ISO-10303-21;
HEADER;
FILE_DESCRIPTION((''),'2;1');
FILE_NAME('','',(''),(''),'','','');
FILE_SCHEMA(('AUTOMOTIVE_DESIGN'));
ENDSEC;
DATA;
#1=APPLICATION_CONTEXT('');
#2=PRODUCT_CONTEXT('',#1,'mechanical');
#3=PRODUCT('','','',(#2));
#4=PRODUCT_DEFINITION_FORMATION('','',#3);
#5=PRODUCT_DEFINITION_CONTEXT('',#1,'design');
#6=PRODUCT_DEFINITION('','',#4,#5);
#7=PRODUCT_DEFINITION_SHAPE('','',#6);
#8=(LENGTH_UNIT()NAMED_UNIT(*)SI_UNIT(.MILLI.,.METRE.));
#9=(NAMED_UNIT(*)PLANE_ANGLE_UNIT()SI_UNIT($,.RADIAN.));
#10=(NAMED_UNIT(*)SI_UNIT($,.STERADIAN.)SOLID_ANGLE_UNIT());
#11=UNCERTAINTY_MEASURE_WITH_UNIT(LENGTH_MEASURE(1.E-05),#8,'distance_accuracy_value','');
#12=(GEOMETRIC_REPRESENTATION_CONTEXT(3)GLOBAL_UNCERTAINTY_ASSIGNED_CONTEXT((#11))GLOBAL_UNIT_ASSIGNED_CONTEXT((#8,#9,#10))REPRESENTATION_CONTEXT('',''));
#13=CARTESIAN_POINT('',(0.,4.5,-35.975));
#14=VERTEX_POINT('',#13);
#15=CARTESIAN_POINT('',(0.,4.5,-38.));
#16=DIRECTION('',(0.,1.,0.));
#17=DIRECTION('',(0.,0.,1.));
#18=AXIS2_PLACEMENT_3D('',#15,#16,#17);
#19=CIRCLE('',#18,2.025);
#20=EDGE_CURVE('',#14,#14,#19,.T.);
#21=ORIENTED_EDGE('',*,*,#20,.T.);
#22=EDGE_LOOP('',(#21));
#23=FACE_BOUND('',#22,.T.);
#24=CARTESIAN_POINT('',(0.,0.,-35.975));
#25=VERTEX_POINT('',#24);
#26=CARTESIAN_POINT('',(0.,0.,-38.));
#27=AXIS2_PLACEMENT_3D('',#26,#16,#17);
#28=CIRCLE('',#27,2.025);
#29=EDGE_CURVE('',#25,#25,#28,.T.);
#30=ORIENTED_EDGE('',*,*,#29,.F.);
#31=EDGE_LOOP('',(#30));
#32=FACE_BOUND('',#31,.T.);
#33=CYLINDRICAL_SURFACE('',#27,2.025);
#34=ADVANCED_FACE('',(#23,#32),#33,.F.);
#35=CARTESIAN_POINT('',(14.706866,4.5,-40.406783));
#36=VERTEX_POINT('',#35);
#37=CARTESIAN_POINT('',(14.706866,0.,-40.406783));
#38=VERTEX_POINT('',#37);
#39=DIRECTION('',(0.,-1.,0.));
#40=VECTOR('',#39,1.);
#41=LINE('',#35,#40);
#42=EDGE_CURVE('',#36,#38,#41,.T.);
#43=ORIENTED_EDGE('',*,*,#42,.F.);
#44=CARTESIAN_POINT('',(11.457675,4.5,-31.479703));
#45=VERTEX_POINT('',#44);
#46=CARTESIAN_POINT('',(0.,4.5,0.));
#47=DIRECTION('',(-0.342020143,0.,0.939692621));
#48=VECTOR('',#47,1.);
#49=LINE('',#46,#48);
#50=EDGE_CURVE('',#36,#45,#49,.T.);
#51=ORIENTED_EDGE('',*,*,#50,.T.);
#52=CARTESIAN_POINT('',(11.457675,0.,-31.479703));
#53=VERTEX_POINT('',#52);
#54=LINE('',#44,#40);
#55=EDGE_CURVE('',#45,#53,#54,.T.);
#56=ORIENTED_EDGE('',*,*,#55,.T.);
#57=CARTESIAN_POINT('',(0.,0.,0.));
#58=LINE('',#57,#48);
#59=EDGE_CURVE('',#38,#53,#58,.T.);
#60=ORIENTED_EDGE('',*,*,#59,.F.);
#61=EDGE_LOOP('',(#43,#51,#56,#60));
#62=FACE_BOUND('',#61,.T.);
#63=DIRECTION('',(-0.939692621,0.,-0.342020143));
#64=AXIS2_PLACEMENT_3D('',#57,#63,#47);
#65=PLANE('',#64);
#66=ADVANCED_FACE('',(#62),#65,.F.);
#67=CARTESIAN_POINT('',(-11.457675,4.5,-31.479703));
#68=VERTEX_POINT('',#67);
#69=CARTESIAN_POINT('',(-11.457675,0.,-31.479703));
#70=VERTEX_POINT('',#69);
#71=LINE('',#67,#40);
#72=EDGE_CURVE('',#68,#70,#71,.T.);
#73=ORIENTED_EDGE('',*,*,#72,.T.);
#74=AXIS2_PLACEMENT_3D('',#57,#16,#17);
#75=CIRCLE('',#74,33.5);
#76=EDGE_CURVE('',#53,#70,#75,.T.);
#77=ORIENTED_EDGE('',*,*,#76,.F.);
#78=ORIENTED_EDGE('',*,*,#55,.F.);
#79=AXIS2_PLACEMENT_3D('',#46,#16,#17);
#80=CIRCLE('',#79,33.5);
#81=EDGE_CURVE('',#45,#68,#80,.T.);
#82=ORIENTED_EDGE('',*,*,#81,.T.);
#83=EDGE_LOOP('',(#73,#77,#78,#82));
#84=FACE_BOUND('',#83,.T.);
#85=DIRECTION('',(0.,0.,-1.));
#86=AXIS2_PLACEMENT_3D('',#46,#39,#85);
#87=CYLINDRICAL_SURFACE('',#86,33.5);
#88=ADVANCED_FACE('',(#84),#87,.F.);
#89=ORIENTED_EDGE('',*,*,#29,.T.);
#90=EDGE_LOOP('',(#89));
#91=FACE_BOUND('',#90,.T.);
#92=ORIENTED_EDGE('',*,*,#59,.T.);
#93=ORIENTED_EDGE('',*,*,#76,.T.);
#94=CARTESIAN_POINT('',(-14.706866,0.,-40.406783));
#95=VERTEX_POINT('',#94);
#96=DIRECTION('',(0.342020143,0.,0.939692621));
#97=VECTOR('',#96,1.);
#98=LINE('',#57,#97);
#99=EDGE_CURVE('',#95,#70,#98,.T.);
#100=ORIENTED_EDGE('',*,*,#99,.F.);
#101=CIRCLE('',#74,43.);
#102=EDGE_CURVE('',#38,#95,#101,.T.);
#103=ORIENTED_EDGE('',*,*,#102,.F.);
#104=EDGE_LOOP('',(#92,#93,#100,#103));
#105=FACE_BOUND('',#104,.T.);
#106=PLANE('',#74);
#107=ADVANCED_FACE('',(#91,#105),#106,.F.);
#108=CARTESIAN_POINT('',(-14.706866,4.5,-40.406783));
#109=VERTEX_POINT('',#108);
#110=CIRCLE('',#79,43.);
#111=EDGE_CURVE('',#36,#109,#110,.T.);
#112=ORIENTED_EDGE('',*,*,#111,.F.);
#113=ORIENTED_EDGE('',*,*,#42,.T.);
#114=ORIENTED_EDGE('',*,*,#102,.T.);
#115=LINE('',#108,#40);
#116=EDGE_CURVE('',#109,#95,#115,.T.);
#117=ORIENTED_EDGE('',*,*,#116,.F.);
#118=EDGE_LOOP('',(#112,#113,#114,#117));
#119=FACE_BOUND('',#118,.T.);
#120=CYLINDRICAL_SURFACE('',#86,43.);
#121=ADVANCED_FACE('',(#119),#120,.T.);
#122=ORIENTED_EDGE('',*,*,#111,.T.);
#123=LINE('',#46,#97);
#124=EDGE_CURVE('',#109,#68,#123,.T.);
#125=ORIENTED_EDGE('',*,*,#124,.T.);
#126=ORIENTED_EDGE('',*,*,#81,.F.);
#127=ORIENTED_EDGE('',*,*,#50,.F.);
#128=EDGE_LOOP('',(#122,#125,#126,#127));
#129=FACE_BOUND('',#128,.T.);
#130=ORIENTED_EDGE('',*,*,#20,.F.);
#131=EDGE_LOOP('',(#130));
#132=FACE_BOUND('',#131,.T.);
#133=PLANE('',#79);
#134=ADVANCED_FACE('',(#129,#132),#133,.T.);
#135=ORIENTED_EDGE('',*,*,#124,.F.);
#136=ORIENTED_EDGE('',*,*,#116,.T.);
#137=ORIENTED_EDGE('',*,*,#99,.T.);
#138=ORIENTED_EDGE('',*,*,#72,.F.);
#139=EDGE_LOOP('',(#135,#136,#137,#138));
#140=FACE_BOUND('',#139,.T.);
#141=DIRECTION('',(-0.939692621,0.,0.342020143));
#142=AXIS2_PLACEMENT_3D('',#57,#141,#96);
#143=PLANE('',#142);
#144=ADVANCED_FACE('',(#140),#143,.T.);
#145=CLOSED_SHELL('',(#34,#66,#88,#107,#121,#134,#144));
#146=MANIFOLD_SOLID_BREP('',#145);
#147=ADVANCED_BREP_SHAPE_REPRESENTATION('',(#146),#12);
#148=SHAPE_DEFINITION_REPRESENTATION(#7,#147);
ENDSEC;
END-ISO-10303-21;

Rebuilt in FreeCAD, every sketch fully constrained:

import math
import FreeCAD as App
import Part
import Sketcher
from FreeCAD import Vector
Q = App.Units.Quantity

doc = App.newDocument("Part")
body = doc.addObject("PartDesign::Body", "Body")

# Sketch on XZ plane
sketch1 = body.newObject("Sketcher::SketchObject", "Sketch")
sketch1.AttachmentSupport = (doc.getObject("XZ_Plane"), [""])
sketch1.MapMode = "FlatFace"
sketch1.addGeometry([
    Part.Circle(Vector(0, 0, 0), Vector(0, 0, 1), 43),
    Part.Circle(Vector(0, 0, 0), Vector(0, 0, 1), 33.5),
], False)
sketch1.addConstraint([
    Sketcher.Constraint("Coincident", 0, 3, -1, 1),
    Sketcher.Constraint("Coincident", 1, 3, -1, 1),
    Sketcher.Constraint("Diameter", 0, 86.0),
    Sketcher.Constraint("Diameter", 1, 67.0),
])
pad1 = body.newObject("PartDesign::Pad", "Pad")
pad1.Profile = sketch1
pad1.Length = 4.5
pad1.Reversed = True

# Sketch on XZ plane
sketch2 = body.newObject("Sketcher::SketchObject", "Sketch001")
sketch2.AttachmentSupport = (doc.getObject("XZ_Plane"), [""])
sketch2.MapMode = "FlatFace"
sketch2.AttachmentOffset = App.Placement(Vector(0, 0, 1), App.Rotation())
sketch2.addGeometry([
    Part.LineSegment(Vector(0, 0, 0), Vector(0, 52.319845, 0)),
    Part.ArcOfCircle(Part.Circle(Vector(0, 0, 0), Vector(0, 0, 1), 52.319845), math.radians(-70), math.radians(90)),
    Part.LineSegment(Vector(17.894441, -49.164572, 0), Vector(0, 0, 0)),
], False)
sketch2.addConstraint([
    Sketcher.Constraint("Coincident", 0, 2, 1, 2),
    Sketcher.Constraint("Coincident", 1, 1, 2, 1),
    Sketcher.Constraint("Coincident", 2, 2, 0, 1),
    Sketcher.Constraint("Vertical", 0),
    Sketcher.Constraint("Coincident", 1, 3, -1, 1),
    Sketcher.Constraint("Coincident", 2, 2, -1, 1),
    Sketcher.Constraint("Angle", 2, Q("110 deg")),
    Sketcher.Constraint("Radius", 1, 52.319845),
])
pocket1 = body.newObject("PartDesign::Pocket", "Pocket")
pocket1.Profile = sketch2
pocket1.Length = 6.5
doc.recompute()

mirrored = body.newObject("PartDesign::Mirrored", "Mirrored")
mirrored.Originals = [pocket1]
mirrored.MirrorPlane = (doc.getObject("YZ_Plane"), [""])
body.Tip = mirrored

# Sketch on XZ plane
sketch3 = body.newObject("Sketcher::SketchObject", "Sketch002")
sketch3.AttachmentSupport = (doc.getObject("XZ_Plane"), [""])
sketch3.MapMode = "FlatFace"
sketch3.AttachmentOffset = App.Placement(Vector(0, 0, -4.5), App.Rotation())
sketch3.addGeometry(Part.Circle(Vector(0, -38, 0), Vector(0, 0, 1), 2.025), False)
sketch3.addConstraint([
    Sketcher.Constraint("PointOnObject", 0, 3, -2),
    Sketcher.Constraint("Diameter", 0, 4.05),
    Sketcher.Constraint("DistanceY", 0, 3, -1, 1, 38.0),
])
pocket2 = body.newObject("PartDesign::Pocket", "Pocket001")
pocket2.Profile = sketch3
pocket2.Type = "ThroughAll"
pocket2.Midplane = True

doc.recompute()
